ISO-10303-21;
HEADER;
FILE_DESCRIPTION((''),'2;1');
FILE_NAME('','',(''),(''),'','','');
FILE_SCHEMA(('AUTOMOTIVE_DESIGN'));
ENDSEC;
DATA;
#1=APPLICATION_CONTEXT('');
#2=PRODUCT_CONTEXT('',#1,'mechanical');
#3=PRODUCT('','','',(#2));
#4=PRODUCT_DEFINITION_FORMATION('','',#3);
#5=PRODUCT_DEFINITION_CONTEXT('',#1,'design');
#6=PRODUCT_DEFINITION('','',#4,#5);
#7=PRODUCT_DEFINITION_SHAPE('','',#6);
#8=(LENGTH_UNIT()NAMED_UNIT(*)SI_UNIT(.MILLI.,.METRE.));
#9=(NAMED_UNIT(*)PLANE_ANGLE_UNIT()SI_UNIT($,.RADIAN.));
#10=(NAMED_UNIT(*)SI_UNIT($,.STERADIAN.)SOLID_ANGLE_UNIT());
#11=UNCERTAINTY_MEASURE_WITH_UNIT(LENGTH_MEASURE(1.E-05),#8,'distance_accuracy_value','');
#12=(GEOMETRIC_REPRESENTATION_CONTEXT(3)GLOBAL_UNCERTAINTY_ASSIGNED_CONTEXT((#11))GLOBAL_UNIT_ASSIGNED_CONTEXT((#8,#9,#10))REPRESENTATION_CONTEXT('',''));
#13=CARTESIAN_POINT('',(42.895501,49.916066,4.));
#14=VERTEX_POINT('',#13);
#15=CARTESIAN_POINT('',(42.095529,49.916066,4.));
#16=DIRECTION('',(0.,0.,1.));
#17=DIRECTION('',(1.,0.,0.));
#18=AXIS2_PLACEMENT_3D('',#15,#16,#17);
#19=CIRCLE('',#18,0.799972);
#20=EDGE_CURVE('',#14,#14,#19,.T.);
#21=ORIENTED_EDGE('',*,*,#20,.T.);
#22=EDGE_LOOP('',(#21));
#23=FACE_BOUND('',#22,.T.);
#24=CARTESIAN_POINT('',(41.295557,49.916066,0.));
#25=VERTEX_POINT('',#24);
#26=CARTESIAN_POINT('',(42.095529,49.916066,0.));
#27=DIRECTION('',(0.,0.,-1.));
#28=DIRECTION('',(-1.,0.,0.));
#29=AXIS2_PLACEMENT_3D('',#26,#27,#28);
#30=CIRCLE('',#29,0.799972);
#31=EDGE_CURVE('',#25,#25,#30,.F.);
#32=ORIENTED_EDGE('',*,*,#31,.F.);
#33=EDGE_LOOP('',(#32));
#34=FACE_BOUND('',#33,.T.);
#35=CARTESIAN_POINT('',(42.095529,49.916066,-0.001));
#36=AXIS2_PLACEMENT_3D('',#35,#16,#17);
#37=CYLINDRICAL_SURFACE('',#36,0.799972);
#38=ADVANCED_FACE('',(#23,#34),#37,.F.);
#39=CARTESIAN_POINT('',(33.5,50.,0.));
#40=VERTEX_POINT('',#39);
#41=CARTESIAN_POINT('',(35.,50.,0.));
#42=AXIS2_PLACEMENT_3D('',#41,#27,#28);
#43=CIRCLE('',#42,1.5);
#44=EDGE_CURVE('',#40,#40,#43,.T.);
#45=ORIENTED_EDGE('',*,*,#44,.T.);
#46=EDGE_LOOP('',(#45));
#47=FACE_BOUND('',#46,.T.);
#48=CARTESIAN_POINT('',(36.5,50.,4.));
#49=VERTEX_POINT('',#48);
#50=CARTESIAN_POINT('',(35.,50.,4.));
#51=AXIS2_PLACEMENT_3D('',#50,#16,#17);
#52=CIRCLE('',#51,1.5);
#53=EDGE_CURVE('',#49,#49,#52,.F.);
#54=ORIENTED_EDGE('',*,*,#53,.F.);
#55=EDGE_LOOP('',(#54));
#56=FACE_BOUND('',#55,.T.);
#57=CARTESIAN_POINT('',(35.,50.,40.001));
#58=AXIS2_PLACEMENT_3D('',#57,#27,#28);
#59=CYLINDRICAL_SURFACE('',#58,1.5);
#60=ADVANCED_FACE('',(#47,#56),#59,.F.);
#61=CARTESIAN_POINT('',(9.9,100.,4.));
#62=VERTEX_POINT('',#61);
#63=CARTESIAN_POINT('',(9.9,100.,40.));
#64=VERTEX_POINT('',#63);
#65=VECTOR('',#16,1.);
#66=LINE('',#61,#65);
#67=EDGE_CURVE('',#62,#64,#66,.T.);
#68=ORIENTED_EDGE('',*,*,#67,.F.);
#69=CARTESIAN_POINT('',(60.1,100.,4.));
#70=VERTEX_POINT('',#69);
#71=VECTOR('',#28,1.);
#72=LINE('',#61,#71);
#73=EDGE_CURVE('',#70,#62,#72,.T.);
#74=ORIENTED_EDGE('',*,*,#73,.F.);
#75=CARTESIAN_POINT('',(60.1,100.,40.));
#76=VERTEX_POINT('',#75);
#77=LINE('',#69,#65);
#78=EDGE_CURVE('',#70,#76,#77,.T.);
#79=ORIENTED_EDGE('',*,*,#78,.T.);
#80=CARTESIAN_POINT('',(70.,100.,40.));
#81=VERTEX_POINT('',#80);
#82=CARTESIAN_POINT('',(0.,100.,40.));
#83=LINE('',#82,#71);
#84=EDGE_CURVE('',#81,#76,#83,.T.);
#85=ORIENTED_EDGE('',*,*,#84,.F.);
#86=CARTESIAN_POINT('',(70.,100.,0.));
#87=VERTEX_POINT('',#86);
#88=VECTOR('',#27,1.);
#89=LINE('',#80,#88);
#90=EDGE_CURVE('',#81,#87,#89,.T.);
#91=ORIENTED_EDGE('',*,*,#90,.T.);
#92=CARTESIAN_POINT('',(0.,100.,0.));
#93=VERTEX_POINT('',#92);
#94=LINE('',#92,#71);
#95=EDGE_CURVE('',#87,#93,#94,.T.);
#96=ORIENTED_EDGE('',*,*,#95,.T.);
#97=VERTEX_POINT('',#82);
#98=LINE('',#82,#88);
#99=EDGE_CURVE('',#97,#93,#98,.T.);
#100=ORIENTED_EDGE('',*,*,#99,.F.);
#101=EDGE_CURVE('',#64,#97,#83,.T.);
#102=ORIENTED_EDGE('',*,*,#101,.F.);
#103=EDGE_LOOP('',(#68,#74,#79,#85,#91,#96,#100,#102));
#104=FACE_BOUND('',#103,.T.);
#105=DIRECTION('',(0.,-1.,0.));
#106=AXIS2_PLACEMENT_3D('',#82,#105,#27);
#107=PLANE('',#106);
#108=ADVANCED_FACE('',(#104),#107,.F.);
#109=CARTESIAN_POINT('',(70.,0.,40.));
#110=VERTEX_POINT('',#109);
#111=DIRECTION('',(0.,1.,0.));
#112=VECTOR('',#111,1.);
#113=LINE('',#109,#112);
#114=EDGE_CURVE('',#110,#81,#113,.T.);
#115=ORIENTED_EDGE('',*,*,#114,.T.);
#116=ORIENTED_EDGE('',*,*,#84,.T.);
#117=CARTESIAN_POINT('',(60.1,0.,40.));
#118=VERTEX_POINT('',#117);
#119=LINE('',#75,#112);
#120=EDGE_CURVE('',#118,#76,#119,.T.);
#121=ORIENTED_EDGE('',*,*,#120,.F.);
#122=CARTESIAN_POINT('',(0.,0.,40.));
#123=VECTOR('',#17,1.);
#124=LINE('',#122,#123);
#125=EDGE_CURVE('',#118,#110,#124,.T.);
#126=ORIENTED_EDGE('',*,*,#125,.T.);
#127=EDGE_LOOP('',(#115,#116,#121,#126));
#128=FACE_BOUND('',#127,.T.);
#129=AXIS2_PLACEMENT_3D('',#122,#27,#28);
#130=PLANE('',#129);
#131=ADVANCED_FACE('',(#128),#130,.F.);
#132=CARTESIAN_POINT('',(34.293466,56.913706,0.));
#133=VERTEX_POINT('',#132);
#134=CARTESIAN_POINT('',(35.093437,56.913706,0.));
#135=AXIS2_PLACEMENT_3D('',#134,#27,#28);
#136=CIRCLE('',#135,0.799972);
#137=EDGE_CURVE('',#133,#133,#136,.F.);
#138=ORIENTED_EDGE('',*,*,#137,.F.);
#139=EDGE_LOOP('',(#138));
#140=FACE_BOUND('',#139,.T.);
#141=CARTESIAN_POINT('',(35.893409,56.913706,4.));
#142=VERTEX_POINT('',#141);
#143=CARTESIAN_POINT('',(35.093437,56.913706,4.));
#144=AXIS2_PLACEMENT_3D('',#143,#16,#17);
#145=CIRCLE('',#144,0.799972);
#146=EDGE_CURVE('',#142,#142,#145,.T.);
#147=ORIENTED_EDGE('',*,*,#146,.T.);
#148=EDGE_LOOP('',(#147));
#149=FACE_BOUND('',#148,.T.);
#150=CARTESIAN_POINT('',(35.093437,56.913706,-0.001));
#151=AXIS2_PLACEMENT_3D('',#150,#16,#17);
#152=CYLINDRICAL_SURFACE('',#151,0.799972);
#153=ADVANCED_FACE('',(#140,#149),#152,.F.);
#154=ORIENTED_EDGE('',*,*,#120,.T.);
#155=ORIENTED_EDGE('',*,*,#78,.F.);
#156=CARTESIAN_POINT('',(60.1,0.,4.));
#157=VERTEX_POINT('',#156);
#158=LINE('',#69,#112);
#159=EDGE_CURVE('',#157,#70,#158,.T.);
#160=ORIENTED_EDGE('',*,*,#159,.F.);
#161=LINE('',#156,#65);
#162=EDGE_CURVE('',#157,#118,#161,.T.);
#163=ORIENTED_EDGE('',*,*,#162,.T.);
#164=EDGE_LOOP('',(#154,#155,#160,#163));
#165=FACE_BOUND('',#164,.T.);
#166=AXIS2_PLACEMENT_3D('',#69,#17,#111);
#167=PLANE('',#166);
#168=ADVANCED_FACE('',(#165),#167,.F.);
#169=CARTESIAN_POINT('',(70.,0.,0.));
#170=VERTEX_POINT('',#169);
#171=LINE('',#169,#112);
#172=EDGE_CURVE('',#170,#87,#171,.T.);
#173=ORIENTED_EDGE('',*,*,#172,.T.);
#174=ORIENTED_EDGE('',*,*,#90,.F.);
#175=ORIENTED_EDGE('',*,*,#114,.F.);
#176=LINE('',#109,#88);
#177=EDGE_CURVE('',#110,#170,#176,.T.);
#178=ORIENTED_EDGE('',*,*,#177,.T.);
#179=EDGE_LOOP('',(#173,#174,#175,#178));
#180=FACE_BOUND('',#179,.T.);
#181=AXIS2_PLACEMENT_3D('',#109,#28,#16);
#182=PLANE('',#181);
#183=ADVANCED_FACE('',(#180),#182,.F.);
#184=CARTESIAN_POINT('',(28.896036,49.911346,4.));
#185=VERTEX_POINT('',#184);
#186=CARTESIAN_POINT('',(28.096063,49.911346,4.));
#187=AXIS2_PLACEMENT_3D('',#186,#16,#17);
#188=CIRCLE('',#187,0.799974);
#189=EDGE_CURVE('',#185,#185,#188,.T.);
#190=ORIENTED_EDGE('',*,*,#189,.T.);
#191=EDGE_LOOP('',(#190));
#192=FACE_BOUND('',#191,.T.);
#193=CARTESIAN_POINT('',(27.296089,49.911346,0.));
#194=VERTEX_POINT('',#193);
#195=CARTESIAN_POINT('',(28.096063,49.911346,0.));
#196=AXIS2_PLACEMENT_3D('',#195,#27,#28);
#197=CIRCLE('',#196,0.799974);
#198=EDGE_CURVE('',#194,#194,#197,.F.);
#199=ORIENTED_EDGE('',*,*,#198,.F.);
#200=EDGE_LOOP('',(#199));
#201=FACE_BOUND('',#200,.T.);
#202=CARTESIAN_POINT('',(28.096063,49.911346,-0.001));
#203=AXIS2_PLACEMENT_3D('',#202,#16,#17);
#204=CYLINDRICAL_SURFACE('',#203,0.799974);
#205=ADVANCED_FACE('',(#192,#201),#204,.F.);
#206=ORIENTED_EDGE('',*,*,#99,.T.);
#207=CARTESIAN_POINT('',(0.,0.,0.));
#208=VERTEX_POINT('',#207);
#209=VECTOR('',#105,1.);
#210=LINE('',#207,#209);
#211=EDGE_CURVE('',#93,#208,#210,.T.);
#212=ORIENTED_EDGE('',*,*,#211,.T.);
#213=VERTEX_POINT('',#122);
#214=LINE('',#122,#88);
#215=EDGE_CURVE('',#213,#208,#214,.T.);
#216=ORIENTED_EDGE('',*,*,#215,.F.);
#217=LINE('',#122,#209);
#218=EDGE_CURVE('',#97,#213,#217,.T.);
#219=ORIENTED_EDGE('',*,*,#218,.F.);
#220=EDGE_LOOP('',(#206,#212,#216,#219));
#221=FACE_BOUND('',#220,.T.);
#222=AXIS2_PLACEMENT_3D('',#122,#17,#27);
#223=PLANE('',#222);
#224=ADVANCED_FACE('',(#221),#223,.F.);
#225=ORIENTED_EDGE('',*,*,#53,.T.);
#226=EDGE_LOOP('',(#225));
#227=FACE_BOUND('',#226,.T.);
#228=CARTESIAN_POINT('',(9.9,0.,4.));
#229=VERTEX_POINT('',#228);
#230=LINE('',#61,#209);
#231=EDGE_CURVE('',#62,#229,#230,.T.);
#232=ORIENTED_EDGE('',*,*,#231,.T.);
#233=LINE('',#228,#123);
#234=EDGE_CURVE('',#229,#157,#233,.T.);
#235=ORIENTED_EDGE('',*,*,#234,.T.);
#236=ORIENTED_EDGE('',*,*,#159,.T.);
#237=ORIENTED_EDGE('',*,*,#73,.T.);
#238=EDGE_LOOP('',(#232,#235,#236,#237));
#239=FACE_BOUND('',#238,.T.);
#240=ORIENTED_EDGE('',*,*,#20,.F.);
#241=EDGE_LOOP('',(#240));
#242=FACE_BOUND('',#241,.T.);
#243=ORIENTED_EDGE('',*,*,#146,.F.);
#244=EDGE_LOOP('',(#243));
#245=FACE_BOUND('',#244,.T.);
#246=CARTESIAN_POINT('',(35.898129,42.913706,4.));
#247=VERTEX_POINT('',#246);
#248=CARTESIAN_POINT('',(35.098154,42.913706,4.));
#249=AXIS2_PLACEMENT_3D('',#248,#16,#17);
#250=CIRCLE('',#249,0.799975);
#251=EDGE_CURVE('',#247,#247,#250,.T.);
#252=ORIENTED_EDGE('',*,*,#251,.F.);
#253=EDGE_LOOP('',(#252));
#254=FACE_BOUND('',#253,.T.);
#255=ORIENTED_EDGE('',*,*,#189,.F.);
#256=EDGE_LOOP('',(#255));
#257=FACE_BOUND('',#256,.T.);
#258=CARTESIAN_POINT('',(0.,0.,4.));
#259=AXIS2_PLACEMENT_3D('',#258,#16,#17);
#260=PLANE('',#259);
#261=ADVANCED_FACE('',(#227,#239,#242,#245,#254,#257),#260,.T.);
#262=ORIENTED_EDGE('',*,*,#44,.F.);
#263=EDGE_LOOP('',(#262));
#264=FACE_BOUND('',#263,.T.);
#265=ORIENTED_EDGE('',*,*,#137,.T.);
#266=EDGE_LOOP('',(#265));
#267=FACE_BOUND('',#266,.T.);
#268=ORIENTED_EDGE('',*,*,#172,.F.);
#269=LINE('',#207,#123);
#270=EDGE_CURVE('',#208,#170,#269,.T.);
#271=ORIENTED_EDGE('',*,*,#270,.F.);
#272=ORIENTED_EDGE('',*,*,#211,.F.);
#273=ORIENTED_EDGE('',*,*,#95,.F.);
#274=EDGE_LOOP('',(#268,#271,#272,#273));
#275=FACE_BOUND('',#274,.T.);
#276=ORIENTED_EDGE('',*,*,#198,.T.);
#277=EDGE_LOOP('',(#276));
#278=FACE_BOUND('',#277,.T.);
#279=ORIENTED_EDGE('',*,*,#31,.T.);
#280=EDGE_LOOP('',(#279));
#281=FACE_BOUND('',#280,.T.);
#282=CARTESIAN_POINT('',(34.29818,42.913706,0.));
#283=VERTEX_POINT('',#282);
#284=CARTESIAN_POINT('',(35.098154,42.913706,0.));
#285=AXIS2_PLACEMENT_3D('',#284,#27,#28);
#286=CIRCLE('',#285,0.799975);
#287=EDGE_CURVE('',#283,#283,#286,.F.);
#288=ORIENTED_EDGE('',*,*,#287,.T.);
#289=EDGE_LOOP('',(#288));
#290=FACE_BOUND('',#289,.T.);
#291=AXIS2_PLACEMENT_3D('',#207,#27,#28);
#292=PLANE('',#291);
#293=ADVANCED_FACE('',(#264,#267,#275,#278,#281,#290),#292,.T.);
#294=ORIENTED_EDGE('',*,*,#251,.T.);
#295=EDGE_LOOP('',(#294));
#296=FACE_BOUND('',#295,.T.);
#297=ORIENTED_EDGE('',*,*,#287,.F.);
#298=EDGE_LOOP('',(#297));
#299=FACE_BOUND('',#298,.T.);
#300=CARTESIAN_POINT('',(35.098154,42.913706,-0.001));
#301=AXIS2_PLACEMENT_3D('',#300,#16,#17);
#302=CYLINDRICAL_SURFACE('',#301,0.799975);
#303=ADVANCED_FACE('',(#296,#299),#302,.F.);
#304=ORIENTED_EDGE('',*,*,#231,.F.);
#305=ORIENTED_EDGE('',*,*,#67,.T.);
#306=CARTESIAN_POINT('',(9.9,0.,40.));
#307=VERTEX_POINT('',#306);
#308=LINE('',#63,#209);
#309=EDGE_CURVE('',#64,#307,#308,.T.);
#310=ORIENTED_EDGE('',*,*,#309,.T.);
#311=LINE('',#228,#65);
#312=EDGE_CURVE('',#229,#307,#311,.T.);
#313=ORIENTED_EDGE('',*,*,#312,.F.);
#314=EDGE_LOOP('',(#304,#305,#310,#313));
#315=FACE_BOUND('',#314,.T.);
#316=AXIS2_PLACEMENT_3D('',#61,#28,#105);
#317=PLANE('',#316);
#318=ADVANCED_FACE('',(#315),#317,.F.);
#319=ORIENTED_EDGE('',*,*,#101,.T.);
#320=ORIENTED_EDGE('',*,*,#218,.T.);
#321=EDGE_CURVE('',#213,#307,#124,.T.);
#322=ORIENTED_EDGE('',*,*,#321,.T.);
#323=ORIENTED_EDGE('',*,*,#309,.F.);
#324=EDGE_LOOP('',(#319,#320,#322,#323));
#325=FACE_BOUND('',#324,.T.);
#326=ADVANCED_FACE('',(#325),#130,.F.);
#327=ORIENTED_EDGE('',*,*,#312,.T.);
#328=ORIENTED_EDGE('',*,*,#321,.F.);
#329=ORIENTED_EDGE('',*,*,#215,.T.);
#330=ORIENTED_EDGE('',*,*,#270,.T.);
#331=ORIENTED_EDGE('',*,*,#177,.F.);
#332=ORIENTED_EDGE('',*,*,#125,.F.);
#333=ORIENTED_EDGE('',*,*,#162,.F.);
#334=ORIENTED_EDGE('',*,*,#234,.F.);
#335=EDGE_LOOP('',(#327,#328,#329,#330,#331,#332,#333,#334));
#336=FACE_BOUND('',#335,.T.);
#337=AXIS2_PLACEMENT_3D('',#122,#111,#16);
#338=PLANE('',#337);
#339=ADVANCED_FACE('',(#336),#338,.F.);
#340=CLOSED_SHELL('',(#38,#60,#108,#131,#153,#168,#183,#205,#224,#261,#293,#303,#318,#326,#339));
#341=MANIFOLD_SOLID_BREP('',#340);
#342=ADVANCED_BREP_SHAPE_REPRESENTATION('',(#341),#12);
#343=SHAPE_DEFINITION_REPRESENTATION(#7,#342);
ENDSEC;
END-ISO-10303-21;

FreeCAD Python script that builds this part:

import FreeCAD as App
import Part
import Sketcher


def add_polygon(sketch, points):
    """Adds a closed chain of lines whose ends are joined by coincident constraints."""
    first, n = sketch.GeometryCount, len(points)
    for a, b in zip(points, points[1:] + points[:1]):
        sketch.addGeometry(Part.LineSegment(App.Vector(*a, 0), App.Vector(*b, 0)), False)
    for i in range(n):
        sketch.addConstraint(Sketcher.Constraint("Coincident", first + i, 2, first + (i + 1) % n, 1))

doc = App.newDocument("Part")
body = doc.addObject("PartDesign::Body", "Body")

sketch1 = body.newObject("Sketcher::SketchObject", "Sketch")
sketch1.AttachmentSupport = (doc.getObject("XY_Plane"), [""])
sketch1.MapMode = "FlatFace"
add_polygon(sketch1, [(0, 100), (0, 0), (70, 0), (70, 100)])
sketch1.addConstraint(Sketcher.Constraint("Vertical", 0))
sketch1.addConstraint(Sketcher.Constraint("Horizontal", 1))
sketch1.addConstraint(Sketcher.Constraint("Vertical", 2))
sketch1.addConstraint(Sketcher.Constraint("Horizontal", 3))
sketch1.addConstraint(Sketcher.Constraint("Coincident", 0, 2, -1, 1))
sketch1.addConstraint(Sketcher.Constraint("DistanceX", 1, 1, 1, 2, 70.0))
sketch1.addConstraint(Sketcher.Constraint("DistanceY", 0, 2, 0, 1, 100.0))
pad1 = body.newObject("PartDesign::Pad", "Pad")
pad1.Profile = sketch1
pad1.Length = 40

sketch2 = body.newObject("Sketcher::SketchObject", "Sketch001")
sketch2.AttachmentSupport = (doc.getObject("XY_Plane"), [""])
sketch2.MapMode = "FlatFace"
sketch2.AttachmentOffset = App.Placement(App.Vector(0, 0, 40), App.Rotation())
add_polygon(sketch2, [(9.9, 100), (9.9, 0), (60.1, 0), (60.1, 100)])
sketch2.addConstraint(Sketcher.Constraint("Vertical", 0))
sketch2.addConstraint(Sketcher.Constraint("Horizontal", 1))
sketch2.addConstraint(Sketcher.Constraint("Vertical", 2))
sketch2.addConstraint(Sketcher.Constraint("Horizontal", 3))
sketch2.addConstraint(Sketcher.Constraint("PointOnObject", 0, 2, -1))
sketch2.addConstraint(Sketcher.Constraint("DistanceY", 0, 2, 0, 1, 100.0))
sketch2.addConstraint(Sketcher.Constraint("DistanceX", 1, 1, 1, 2, 50.2))
sketch2.addConstraint(Sketcher.Constraint("DistanceX", -1, 1, 0, 2, 9.9))
pocket1 = body.newObject("PartDesign::Pocket", "Pocket")
pocket1.Profile = sketch2
pocket1.Length = 36

sketch3 = body.newObject("Sketcher::SketchObject", "Sketch002")
sketch3.AttachmentSupport = (doc.getObject("XY_Plane"), [""])
sketch3.MapMode = "FlatFace"
sketch3.addGeometry(Part.Circle(App.Vector(35, 50, 0), App.Vector(0, 0, 1), 1.5), False)
sketch3.addConstraint(Sketcher.Constraint("Diameter", 0, 3.0))
sketch3.addConstraint(Sketcher.Constraint("DistanceX", -1, 1, 0, 3, 35.0))
sketch3.addConstraint(Sketcher.Constraint("DistanceY", -1, 1, 0, 3, 50.0))
pocket2 = body.newObject("PartDesign::Pocket", "Pocket001")
pocket2.Profile = sketch3
pocket2.Type = "UpToFirst"
pocket2.Reversed = True

sketch4 = body.newObject("Sketcher::SketchObject", "Sketch003")
sketch4.AttachmentSupport = (doc.getObject("XY_Plane"), [""])
sketch4.MapMode = "FlatFace"
sketch4.AttachmentOffset = App.Placement(App.Vector(0, 0, 4), App.Rotation())
sketch4.addGeometry(Part.Circle(App.Vector(35.098154, 42.913706, 0), App.Vector(0, 0, 1), 0.799975), False)
sketch4.addConstraint(Sketcher.Constraint("Diameter", 0, 1.599949))
sketch4.addConstraint(Sketcher.Constraint("DistanceX", -1, 1, 0, 3, 35.098154))
sketch4.addConstraint(Sketcher.Constraint("DistanceY", -1, 1, 0, 3, 42.913706))
pocket3 = body.newObject("PartDesign::Pocket", "Pocket002")
pocket3.Profile = sketch4
pocket3.Type = "UpToFirst"

sketch5 = body.newObject("Sketcher::SketchObject", "Sketch004")
sketch5.AttachmentSupport = (doc.getObject("XY_Plane"), [""])
sketch5.MapMode = "FlatFace"
sketch5.AttachmentOffset = App.Placement(App.Vector(0, 0, 4), App.Rotation())
sketch5.addGeometry(Part.Circle(App.Vector(28.096063, 49.911346, 0), App.Vector(0, 0, 1), 0.799974), False)
sketch5.addConstraint(Sketcher.Constraint("Diameter", 0, 1.599947))
sketch5.addConstraint(Sketcher.Constraint("DistanceX", -1, 1, 0, 3, 28.096063))
sketch5.addConstraint(Sketcher.Constraint("DistanceY", -1, 1, 0, 3, 49.911346))
pocket4 = body.newObject("PartDesign::Pocket", "Pocket003")
pocket4.Profile = sketch5
pocket4.Type = "UpToFirst"

sketch6 = body.newObject("Sketcher::SketchObject", "Sketch005")
sketch6.AttachmentSupport = (doc.getObject("XY_Plane"), [""])
sketch6.MapMode = "FlatFace"
sketch6.AttachmentOffset = App.Placement(App.Vector(0, 0, 4), App.Rotation())
sketch6.addGeometry(Part.Circle(App.Vector(35.093437, 56.913706, 0), App.Vector(0, 0, 1), 0.799972), False)
sketch6.addConstraint(Sketcher.Constraint("Diameter", 0, 1.599944))
sketch6.addConstraint(Sketcher.Constraint("DistanceX", -1, 1, 0, 3, 35.093437))
sketch6.addConstraint(Sketcher.Constraint("DistanceY", -1, 1, 0, 3, 56.913706))
pocket5 = body.newObject("PartDesign::Pocket", "Pocket004")
pocket5.Profile = sketch6
pocket5.Type = "UpToFirst"

sketch7 = body.newObject("Sketcher::SketchObject", "Sketch006")
sketch7.AttachmentSupport = (doc.getObject("XY_Plane"), [""])
sketch7.MapMode = "FlatFace"
sketch7.AttachmentOffset = App.Placement(App.Vector(0, 0, 4), App.Rotation())
sketch7.addGeometry(Part.Circle(App.Vector(42.095529, 49.916066, 0), App.Vector(0, 0, 1), 0.799972), False)
sketch7.addConstraint(Sketcher.Constraint("Diameter", 0, 1.599945))
sketch7.addConstraint(Sketcher.Constraint("DistanceX", -1, 1, 0, 3, 42.095529))
sketch7.addConstraint(Sketcher.Constraint("DistanceY", -1, 1, 0, 3, 49.916066))
pocket6 = body.newObject("PartDesign::Pocket", "Pocket005")
pocket6.Profile = sketch7
pocket6.Type = "UpToFirst"

doc.recompute()
